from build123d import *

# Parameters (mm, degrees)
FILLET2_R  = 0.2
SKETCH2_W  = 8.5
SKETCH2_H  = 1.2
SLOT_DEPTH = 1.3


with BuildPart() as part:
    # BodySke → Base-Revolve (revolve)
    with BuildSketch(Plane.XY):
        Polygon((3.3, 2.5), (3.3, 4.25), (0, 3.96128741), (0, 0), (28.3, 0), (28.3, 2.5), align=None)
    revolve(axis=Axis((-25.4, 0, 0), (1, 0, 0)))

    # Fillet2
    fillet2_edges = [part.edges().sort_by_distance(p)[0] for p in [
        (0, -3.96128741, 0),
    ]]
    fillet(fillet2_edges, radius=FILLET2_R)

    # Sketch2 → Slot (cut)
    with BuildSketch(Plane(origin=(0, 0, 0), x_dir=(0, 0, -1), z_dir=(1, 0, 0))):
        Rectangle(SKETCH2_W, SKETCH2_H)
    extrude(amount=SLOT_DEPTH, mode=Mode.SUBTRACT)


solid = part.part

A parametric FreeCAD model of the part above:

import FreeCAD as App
import Part
import Sketcher
Q = App.Units.Quantity


def edges_at(feature, points):
    """Names of the edges that pass closest to the given points."""
    edges = feature.Shape.Edges
    near = lambda p: min(range(len(edges)), key=lambda i: edges[i].distToShape(Part.Vertex(*p))[0])
    return sorted({f"Edge{near(p) + 1}" for p in points})

doc = App.newDocument("Part")
params = doc.addObject("Spreadsheet::Sheet", "Params")
for row, (alias, value) in enumerate([
    ("sketch1_width", "25 mm"),
    ("sketch1_width2", "28.3 mm"),
    ("sketch1_height", "2.5 mm"),
    ("sketch1_height2", "1.75 mm"),
    ("revolution_angle", "360 deg"),
    ("fillet_radius", "0.2 mm"),
    ("sketch2_width", "1.2 mm"),
    ("sketch2_height", "8.5 mm"),
    ("pocket1_length", "1.3 mm"),
], start=1):
    params.set(f"A{row}", alias)
    params.set(f"B{row}", "=" + value)
    params.setAlias(f"B{row}", alias)

body = doc.addObject("PartDesign::Body", "Body")

sketch1 = body.newObject("Sketcher::SketchObject", "Sketch")
sketch1.AttachmentSupport = (doc.getObject("XY_Plane"), [""])
sketch1.MapMode = "FlatFace"
sketch1.addGeometry([
    Part.LineSegment(App.Vector(3.3, 2.5, 0), App.Vector(3.3, 4.2, 0)),
    Part.LineSegment(App.Vector(3.3, 4.2, 0), App.Vector(0, 4, 0)),
    Part.LineSegment(App.Vector(0, 4, 0), App.Vector(0, 0, 0)),
    Part.LineSegment(App.Vector(0, 0, 0), App.Vector(28.3, 0, 0)),
    Part.LineSegment(App.Vector(28.3, 0, 0), App.Vector(28.3, 2.5, 0)),
    Part.LineSegment(App.Vector(28.3, 2.5, 0), App.Vector(3.3, 2.5, 0)),
], False)
sketch1.addConstraint([
    Sketcher.Constraint("Coincident", 0, 2, 1, 1),
    Sketcher.Constraint("Coincident", 1, 2, 2, 1),
    Sketcher.Constraint("Coincident", 2, 2, 3, 1),
    Sketcher.Constraint("Coincident", 3, 2, 4, 1),
    Sketcher.Constraint("Coincident", 4, 2, 5, 1),
    Sketcher.Constraint("Coincident", 5, 2, 0, 1),
    Sketcher.Constraint("Vertical", 0),
    Sketcher.Constraint("Vertical", 2),
    Sketcher.Constraint("Horizontal", 3),
    Sketcher.Constraint("Vertical", 4),
    Sketcher.Constraint("Horizontal", 5),
    Sketcher.Constraint("Coincident", 2, 2, -1, 1),
    Sketcher.Constraint("DistanceX", 5, 2, 5, 1, Q("25 mm")),
    Sketcher.Constraint("Angle", 1, Q("-175 deg")),
    Sketcher.Constraint("DistanceX", 3, 1, 3, 2, Q("28.3 mm")),
    Sketcher.Constraint("DistanceY", 4, 1, 4, 2, Q("2.5 mm")),
    Sketcher.Constraint("DistanceY", 0, 1, 0, 2, Q("1.75 mm")),
])
sketch1.setExpression("Constraints[12]", "Params.sketch1_width")
sketch1.setExpression("Constraints[14]", "Params.sketch1_width2")
sketch1.setExpression("Constraints[15]", "Params.sketch1_height")
sketch1.setExpression("Constraints[16]", "Params.sketch1_height2")
revolution = body.newObject("PartDesign::Revolution", "Revolution")
revolution.Profile = sketch1
revolution.ReferenceAxis = (sketch1, ["H_Axis"])
revolution.setExpression("Angle", "Params.revolution_angle")
doc.recompute()

fillet = body.newObject("PartDesign::Fillet", "Fillet")
fillet.Base = (revolution, edges_at(revolution, [(0, -3.961, 0)]))
fillet.setExpression("Radius", "Params.fillet_radius")

sketch2 = body.newObject("Sketcher::SketchObject", "Sketch001")
sketch2.AttachmentSupport = (doc.getObject("YZ_Plane"), [""])
sketch2.MapMode = "FlatFace"
sketch2.addGeometry([
    Part.LineSegment(App.Vector(0.6, 4.2, 0), App.Vector(-0.6, 4.2, 0)),
    Part.LineSegment(App.Vector(-0.6, 4.2, 0), App.Vector(-0.6, -4.2, 0)),
    Part.LineSegment(App.Vector(-0.6, -4.2, 0), App.Vector(0.6, -4.2, 0)),
    Part.LineSegment(App.Vector(0.6, -4.2, 0), App.Vector(0.6, 4.2, 0)),
], False)
sketch2.addConstraint([
    Sketcher.Constraint("Coincident", 0, 2, 1, 1),
    Sketcher.Constraint("Coincident", 1, 2, 2, 1),
    Sketcher.Constraint("Coincident", 2, 2, 3, 1),
    Sketcher.Constraint("Coincident", 3, 2, 0, 1),
    Sketcher.Constraint("Horizontal", 0),
    Sketcher.Constraint("Vertical", 1),
    Sketcher.Constraint("Horizontal", 2),
    Sketcher.Constraint("Vertical", 3),
    Sketcher.Constraint("Symmetric", 0, 2, 2, 2, -1, 1),
    Sketcher.Constraint("DistanceX", 0, 2, 0, 1, Q("1.2 mm")),
    Sketcher.Constraint("DistanceY", 1, 2, 1, 1, Q("8.5 mm")),
])
sketch2.setExpression("Constraints[9]", "Params.sketch2_width")
sketch2.setExpression("Constraints[10]", "Params.sketch2_height")
pocket1 = body.newObject("PartDesign::Pocket", "Pocket")
pocket1.Profile = sketch2
pocket1.setExpression("Length", "Params.pocket1_length")
pocket1.Reversed = True

doc.recompute()
